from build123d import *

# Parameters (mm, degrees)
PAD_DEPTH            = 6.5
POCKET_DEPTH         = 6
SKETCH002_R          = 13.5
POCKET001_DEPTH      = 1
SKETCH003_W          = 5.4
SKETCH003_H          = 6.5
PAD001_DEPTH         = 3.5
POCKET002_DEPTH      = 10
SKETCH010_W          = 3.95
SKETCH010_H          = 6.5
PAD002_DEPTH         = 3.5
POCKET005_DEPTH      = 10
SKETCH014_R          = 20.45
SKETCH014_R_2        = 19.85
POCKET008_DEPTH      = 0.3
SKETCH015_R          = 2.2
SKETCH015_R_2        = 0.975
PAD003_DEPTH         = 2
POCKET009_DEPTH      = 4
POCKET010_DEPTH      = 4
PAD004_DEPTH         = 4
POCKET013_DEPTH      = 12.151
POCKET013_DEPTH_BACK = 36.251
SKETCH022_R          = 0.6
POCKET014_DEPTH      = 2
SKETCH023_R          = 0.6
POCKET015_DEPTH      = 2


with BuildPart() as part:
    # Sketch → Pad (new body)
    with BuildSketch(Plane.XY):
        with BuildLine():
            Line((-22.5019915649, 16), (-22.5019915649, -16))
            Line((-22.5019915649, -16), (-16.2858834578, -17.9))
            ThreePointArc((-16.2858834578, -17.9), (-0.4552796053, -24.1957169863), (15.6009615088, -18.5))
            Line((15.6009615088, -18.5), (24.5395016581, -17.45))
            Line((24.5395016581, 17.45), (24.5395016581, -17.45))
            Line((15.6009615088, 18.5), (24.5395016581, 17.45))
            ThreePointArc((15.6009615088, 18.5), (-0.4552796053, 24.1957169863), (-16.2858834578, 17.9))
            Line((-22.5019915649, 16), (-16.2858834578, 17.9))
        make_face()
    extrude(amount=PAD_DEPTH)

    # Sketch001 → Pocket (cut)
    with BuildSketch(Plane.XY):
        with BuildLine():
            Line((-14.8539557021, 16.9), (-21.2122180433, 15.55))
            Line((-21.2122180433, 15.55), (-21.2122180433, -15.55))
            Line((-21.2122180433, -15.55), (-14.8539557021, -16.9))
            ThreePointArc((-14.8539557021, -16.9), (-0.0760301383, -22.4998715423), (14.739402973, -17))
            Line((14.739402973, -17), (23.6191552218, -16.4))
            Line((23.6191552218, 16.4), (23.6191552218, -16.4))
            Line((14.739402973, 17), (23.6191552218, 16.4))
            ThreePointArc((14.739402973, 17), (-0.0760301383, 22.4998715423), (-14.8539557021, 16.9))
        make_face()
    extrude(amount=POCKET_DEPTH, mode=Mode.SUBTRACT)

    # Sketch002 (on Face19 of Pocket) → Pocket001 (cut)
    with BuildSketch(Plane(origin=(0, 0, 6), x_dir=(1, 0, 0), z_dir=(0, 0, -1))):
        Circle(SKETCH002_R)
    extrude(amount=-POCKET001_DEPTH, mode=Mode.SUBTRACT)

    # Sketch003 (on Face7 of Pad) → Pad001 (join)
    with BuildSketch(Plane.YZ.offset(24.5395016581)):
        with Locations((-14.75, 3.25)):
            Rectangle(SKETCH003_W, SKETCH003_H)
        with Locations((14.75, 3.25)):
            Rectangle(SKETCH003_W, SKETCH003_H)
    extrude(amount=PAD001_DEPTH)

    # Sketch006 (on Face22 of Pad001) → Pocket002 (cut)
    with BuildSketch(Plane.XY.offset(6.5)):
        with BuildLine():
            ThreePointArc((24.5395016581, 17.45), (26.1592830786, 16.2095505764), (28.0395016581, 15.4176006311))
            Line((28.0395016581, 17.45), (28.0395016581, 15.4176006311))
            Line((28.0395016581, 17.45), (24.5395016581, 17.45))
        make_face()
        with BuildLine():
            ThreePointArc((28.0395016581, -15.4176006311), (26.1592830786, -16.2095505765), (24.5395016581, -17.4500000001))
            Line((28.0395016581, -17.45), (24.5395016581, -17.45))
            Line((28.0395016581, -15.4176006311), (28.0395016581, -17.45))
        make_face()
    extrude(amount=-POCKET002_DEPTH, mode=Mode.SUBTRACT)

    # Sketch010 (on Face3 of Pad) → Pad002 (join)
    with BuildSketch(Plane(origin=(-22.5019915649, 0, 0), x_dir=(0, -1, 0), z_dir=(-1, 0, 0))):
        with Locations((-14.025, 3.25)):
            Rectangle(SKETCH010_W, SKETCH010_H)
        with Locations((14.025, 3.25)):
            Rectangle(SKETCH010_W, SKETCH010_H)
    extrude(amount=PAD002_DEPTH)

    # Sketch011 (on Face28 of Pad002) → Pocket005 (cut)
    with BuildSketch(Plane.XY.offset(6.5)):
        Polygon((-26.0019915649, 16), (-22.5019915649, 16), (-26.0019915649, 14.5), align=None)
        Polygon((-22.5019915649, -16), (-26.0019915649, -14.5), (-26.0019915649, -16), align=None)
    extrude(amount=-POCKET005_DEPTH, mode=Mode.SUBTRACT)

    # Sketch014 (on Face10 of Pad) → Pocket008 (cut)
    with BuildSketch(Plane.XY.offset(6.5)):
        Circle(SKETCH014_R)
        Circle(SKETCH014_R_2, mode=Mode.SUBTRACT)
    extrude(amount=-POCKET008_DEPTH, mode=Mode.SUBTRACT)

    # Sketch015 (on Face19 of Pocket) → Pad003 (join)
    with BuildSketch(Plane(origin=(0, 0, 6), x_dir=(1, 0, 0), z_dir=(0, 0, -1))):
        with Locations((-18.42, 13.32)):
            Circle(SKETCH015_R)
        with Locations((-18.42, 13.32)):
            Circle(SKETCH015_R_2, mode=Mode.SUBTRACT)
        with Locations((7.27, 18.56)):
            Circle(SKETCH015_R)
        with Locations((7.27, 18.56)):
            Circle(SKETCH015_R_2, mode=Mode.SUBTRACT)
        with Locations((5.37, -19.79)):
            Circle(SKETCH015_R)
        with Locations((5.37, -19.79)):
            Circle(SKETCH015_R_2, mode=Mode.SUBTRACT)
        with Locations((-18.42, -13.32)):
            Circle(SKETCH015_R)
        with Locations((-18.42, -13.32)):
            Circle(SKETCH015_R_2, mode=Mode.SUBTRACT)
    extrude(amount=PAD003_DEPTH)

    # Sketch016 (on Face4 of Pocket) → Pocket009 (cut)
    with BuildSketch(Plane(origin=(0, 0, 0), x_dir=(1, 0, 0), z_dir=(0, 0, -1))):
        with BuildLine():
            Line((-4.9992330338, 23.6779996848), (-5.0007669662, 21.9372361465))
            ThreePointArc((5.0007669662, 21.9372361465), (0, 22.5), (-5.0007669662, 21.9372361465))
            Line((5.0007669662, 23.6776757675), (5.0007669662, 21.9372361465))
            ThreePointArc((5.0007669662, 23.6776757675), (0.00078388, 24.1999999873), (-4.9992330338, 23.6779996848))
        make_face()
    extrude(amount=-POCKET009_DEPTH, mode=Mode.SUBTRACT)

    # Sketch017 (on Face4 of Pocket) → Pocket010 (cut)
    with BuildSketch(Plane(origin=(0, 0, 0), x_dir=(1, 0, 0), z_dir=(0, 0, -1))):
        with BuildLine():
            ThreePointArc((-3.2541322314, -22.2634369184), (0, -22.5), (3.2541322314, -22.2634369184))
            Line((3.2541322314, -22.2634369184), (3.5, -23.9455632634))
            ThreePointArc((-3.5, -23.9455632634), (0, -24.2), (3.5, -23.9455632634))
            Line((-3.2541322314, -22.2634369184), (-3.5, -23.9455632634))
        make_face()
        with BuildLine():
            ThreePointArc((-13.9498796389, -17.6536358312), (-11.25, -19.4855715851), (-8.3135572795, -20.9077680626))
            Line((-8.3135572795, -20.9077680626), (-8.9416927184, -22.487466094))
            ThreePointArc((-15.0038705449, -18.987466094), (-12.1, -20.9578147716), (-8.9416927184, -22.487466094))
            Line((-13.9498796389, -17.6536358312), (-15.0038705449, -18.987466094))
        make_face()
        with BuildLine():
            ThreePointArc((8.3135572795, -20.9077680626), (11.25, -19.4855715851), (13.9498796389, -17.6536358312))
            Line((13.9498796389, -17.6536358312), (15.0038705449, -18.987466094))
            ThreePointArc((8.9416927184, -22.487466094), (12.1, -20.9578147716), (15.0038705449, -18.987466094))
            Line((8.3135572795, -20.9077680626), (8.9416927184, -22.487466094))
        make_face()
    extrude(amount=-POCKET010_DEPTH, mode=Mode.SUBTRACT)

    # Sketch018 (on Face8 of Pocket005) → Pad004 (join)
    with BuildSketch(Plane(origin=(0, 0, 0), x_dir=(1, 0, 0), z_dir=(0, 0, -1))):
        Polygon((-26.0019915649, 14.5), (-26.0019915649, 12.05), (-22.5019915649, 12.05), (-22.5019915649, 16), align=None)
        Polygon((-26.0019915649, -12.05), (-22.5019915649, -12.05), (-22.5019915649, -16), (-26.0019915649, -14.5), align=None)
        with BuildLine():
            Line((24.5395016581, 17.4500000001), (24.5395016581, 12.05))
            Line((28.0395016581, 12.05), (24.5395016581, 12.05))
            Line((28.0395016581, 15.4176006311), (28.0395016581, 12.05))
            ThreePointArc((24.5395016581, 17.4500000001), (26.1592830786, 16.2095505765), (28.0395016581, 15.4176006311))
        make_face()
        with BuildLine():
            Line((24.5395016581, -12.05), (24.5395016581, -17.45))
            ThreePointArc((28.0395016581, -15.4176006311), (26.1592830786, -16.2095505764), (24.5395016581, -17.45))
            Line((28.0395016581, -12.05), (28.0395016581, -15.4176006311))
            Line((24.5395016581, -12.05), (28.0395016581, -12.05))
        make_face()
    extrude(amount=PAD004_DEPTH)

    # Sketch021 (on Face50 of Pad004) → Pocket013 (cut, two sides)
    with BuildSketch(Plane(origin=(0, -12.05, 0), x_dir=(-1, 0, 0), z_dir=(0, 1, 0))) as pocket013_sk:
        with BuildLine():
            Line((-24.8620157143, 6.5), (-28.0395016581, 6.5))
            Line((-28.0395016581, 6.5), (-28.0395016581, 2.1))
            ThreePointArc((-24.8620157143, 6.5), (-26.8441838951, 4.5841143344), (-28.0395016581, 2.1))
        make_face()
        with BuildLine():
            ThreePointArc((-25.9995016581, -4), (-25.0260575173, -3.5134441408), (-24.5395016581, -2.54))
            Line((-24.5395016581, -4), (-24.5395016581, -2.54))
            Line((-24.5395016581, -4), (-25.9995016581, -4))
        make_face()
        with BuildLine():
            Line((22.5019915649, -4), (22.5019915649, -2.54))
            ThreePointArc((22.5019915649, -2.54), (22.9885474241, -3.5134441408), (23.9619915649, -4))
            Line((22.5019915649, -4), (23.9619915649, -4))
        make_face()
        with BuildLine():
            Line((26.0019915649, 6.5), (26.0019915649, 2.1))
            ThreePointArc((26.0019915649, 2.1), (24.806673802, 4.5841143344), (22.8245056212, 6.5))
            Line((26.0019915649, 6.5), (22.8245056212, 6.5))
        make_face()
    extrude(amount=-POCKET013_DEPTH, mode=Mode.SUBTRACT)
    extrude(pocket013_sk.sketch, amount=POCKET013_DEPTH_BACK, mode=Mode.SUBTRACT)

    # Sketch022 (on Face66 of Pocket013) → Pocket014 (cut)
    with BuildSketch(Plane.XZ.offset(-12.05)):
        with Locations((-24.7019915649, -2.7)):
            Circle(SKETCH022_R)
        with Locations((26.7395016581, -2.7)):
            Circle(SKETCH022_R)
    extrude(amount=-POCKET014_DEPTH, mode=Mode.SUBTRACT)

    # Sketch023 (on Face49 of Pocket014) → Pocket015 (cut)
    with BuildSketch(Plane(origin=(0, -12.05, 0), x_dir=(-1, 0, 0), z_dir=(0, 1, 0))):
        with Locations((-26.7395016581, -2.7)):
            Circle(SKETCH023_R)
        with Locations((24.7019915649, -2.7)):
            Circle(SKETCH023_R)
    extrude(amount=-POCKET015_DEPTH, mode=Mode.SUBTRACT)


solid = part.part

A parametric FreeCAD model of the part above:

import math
import FreeCAD as App
import Part
import Sketcher
Q = App.Units.Quantity

doc = App.newDocument("Part")
body = doc.addObject("PartDesign::Body", "Body")

sketch1 = body.newObject("Sketcher::SketchObject", "Sketch")
sketch1.AttachmentSupport = (doc.getObject("XY_Plane"), [""])
sketch1.MapMode = "FlatFace"
sketch1.addGeometry([
    Part.LineSegment(App.Vector(-22.501992, 16, 0), App.Vector(-22.501992, -16, 0)),
    Part.LineSegment(App.Vector(-22.501992, -16, 0), App.Vector(-16.285883, -17.9, 0)),
    Part.ArcOfCircle(Part.Circle(App.Vector(0, 0, 0), App.Vector(0, 0, 1), 24.2), math.radians(-132.296737), math.radians(-49.859225)),
    Part.LineSegment(App.Vector(15.600962, -18.5, 0), App.Vector(24.539502, -17.45, 0)),
    Part.LineSegment(App.Vector(24.539502, -17.45, 0), App.Vector(24.539502, 17.45, 0)),
    Part.LineSegment(App.Vector(24.539502, 17.45, 0), App.Vector(15.600962, 18.5, 0)),
    Part.ArcOfCircle(Part.Circle(App.Vector(0, 0, 0), App.Vector(0, 0, 1), 24.2), math.radians(49.859225), math.radians(132.296737)),
    Part.LineSegment(App.Vector(-16.285883, 17.9, 0), App.Vector(-22.501992, 16, 0)),
], False)
sketch1.addConstraint([
    Sketcher.Constraint("Coincident", 0, 2, 1, 1),
    Sketcher.Constraint("Coincident", 1, 2, 2, 1),
    Sketcher.Constraint("Coincident", 2, 2, 3, 1),
    Sketcher.Constraint("Coincident", 3, 2, 4, 1),
    Sketcher.Constraint("Coincident", 4, 2, 5, 1),
    Sketcher.Constraint("Coincident", 5, 2, 6, 1),
    Sketcher.Constraint("Coincident", 6, 2, 7, 1),
    Sketcher.Constraint("Coincident", 7, 2, 0, 1),
    Sketcher.Constraint("Vertical", 0),
    Sketcher.Constraint("Vertical", 4),
    Sketcher.Constraint("Coincident", 2, 3, -1, 1),
    Sketcher.Constraint("Coincident", 6, 3, -1, 1),
    Sketcher.Constraint("Equal", 2, 6),
    Sketcher.Constraint("Vertical", 2, 2, 5, 2),
    Sketcher.Constraint("Vertical", 1, 2, 6, 2),
    Sketcher.Constraint("Equal", 3, 5),
    Sketcher.Constraint("Equal", 1, 7),
    Sketcher.Constraint("Radius", 2, Q("24.2 mm")),
    Sketcher.Constraint("DistanceY", 0, 2, 0, 1, Q("32 mm")),
    Sketcher.Constraint("Distance", 3, Q("9 mm")),
    Sketcher.Constraint("DistanceY", 4, 1, 4, 2, Q("34.9 mm")),
    Sketcher.Constraint("DistanceY", 2, 2, 5, 2, Q("37 mm")),
    Sketcher.Constraint("Distance", 1, Q("6.5 mm")),
    Sketcher.Constraint("DistanceY", 1, 2, -1, 1, Q("17.9 mm")),
])
pad1 = body.newObject("PartDesign::Pad", "Pad")
pad1.Profile = sketch1
pad1.Length = 6.5

sketch2 = body.newObject("Sketcher::SketchObject", "Sketch001")
sketch2.AttachmentSupport = (doc.getObject("XY_Plane"), [""])
sketch2.MapMode = "FlatFace"
sketch2.addGeometry([
    Part.LineSegment(App.Vector(-14.853956, 16.9, 0), App.Vector(-21.212218, 15.55, 0)),
    Part.LineSegment(App.Vector(-21.212218, 15.55, 0), App.Vector(-21.212218, -15.55, 0)),
    Part.LineSegment(App.Vector(-21.212218, -15.55, 0), App.Vector(-14.853956, -16.9, 0)),
    Part.ArcOfCircle(Part.Circle(App.Vector(0, 0, 0), App.Vector(0, 0, 1), 22.5), math.radians(-131.313282), math.radians(-49.073937)),
    Part.LineSegment(App.Vector(14.739403, -17, 0), App.Vector(23.619155, -16.4, 0)),
    Part.LineSegment(App.Vector(23.619155, -16.4, 0), App.Vector(23.619155, 16.4, 0)),
    Part.LineSegment(App.Vector(23.619155, 16.4, 0), App.Vector(14.739403, 17, 0)),
    Part.ArcOfCircle(Part.Circle(App.Vector(0, 0, 0), App.Vector(0, 0, 1), 22.5), math.radians(49.073937), math.radians(131.313282)),
], False)
sketch2.addConstraint([
    Sketcher.Constraint("Coincident", 0, 2, 1, 1),
    Sketcher.Constraint("Coincident", 1, 2, 2, 1),
    Sketcher.Constraint("Coincident", 2, 2, 3, 1),
    Sketcher.Constraint("Coincident", 3, 2, 4, 1),
    Sketcher.Constraint("Coincident", 4, 2, 5, 1),
    Sketcher.Constraint("Coincident", 5, 2, 6, 1),
    Sketcher.Constraint("Coincident", 6, 2, 7, 1),
    Sketcher.Constraint("Coincident", 7, 2, 0, 1),
    Sketcher.Constraint("Vertical", 1),
    Sketcher.Constraint("Vertical", 5),
    Sketcher.Constraint("Coincident", 3, 3, -1, 1),
    Sketcher.Constraint("Coincident", 7, 3, -1, 1),
    Sketcher.Constraint("Equal", 3, 7),
    Sketcher.Constraint("Vertical", 3, 2, 6, 2),
    Sketcher.Constraint("Vertical", 2, 2, 7, 2),
    Sketcher.Constraint("Equal", 0, 2),
    Sketcher.Constraint("Equal", 4, 6),
    Sketcher.Constraint("Radius", 3, Q("22.5 mm")),
    Sketcher.Constraint("DistanceY", 1, 2, 1, 1, Q("31.1 mm")),
    Sketcher.Constraint("DistanceY", 5, 1, 5, 2, Q("32.8 mm")),
    Sketcher.Constraint("DistanceY", 3, 2, -1, 1, Q("17 mm")),
    Sketcher.Constraint("Distance", 0, Q("6.5 mm")),
    Sketcher.Constraint("Distance", 4, Q("8.9 mm")),
    Sketcher.Constraint("DistanceY", 2, 2, -1, 1, Q("16.9 mm")),
])
pocket1 = body.newObject("PartDesign::Pocket", "Pocket")
pocket1.Profile = sketch2
pocket1.Length = 6
pocket1.Reversed = True

sketch3 = body.newObject("Sketcher::SketchObject", "Sketch002")
sketch3.AttachmentSupport = (doc.getObject("XY_Plane"), [""])
sketch3.MapMode = "FlatFace"
sketch3.AttachmentOffset = App.Placement(App.Vector(0, 0, 6), App.Rotation())
sketch3.addGeometry(Part.Circle(App.Vector(0, 0, 0), App.Vector(0, 0, 1), 13.5), False)
sketch3.addConstraint([
    Sketcher.Constraint("Coincident", 0, 3, -1, 1),
    Sketcher.Constraint("Diameter", 0, Q("27 mm")),
])
pocket2 = body.newObject("PartDesign::Pocket", "Pocket001")
pocket2.Profile = sketch3
pocket2.Length = 1
pocket2.Reversed = True

sketch4 = body.newObject("Sketcher::SketchObject", "Sketch003")
sketch4.AttachmentSupport = (doc.getObject("YZ_Plane"), [""])
sketch4.MapMode = "FlatFace"
sketch4.AttachmentOffset = App.Placement(App.Vector(0, 0, 24.539502), App.Rotation())
sketch4.addGeometry([
    Part.LineSegment(App.Vector(-17.45, 6.5, 0), App.Vector(-17.45, 0, 0)),
    Part.LineSegment(App.Vector(-17.45, 0, 0), App.Vector(-12.05, 0, 0)),
    Part.LineSegment(App.Vector(-12.05, 0, 0), App.Vector(-12.05, 6.5, 0)),
    Part.LineSegment(App.Vector(-12.05, 6.5, 0), App.Vector(-17.45, 6.5, 0)),
    Part.LineSegment(App.Vector(12.05, 6.5, 0), App.Vector(12.05, 0, 0)),
    Part.LineSegment(App.Vector(12.05, 0, 0), App.Vector(17.45, 0, 0)),
    Part.LineSegment(App.Vector(17.45, 0, 0), App.Vector(17.45, 6.5, 0)),
    Part.LineSegment(App.Vector(17.45, 6.5, 0), App.Vector(12.05, 6.5, 0)),
], False)
sketch4.addConstraint([
    Sketcher.Constraint("Coincident", 0, 2, 1, 1),
    Sketcher.Constraint("Coincident", 1, 2, 2, 1),
    Sketcher.Constraint("Coincident", 2, 2, 3, 1),
    Sketcher.Constraint("Coincident", 3, 2, 0, 1),
    Sketcher.Constraint("Coincident", 4, 2, 5, 1),
    Sketcher.Constraint("Coincident", 5, 2, 6, 1),
    Sketcher.Constraint("Coincident", 6, 2, 7, 1),
    Sketcher.Constraint("Coincident", 7, 2, 4, 1),
    Sketcher.Constraint("Vertical", 0),
    Sketcher.Constraint("Horizontal", 1),
    Sketcher.Constraint("Vertical", 2),
    Sketcher.Constraint("Horizontal", 3),
    Sketcher.Constraint("Vertical", 4),
    Sketcher.Constraint("Horizontal", 5),
    Sketcher.Constraint("Vertical", 6),
    Sketcher.Constraint("Horizontal", 7),
    Sketcher.Constraint("Symmetric", 1, 2, 4, 2, -1, 1),
    Sketcher.Constraint("Symmetric", 0, 2, 5, 2, -2),
    Sketcher.Constraint("Horizontal", 3, 2, 6, 2),
    Sketcher.Constraint("DistanceX", 1, 1, 1, 2, Q("5.4 mm")),
    Sketcher.Constraint("DistanceY", 0, 2, 0, 1, Q("6.5 mm")),
    Sketcher.Constraint("DistanceX", 1, 2, 4, 2, Q("24.1 mm")),
])
pad2 = body.newObject("PartDesign::Pad", "Pad001")
pad2.Profile = sketch4
pad2.Length = 3.5

sketch5 = body.newObject("Sketcher::SketchObject", "Sketch004")
sketch5.AttachmentSupport = (doc.getObject("XY_Plane"), [""])
sketch5.MapMode = "FlatFace"
sketch5.AttachmentOffset = App.Placement(App.Vector(0, 0, 6.5), App.Rotation())
sketch5.addGeometry([
    Part.ArcOfCircle(Part.Circle(App.Vector(30.189502, 23.15, 0), App.Vector(0, 0, 1), 8.02574), math.radians(-134.747597), math.radians(-105.538634)),
    Part.LineSegment(App.Vector(28.039502, 15.417601, 0), App.Vector(28.039502, 17.45, 0)),
    Part.LineSegment(App.Vector(28.039502, 17.45, 0), App.Vector(24.539502, 17.45, 0)),
    Part.ArcOfCircle(Part.Circle(App.Vector(30.189502, -23.15, 0), App.Vector(0, 0, 1), 8.02574), math.radians(105.538634), math.radians(134.747597)),
    Part.LineSegment(App.Vector(24.539502, -17.45, 0), App.Vector(28.039502, -17.45, 0)),
    Part.LineSegment(App.Vector(28.039502, -17.45, 0), App.Vector(28.039502, -15.417601, 0)),
], False)
sketch5.addConstraint([
    Sketcher.Constraint("Coincident", 0, 2, 1, 1),
    Sketcher.Constraint("Coincident", 1, 2, 2, 1),
    Sketcher.Constraint("Coincident", 2, 2, 0, 1),
    Sketcher.Constraint("Coincident", 3, 2, 4, 1),
    Sketcher.Constraint("Coincident", 4, 2, 5, 1),
    Sketcher.Constraint("Coincident", 5, 2, 3, 1),
    Sketcher.Constraint("Vertical", 1),
    Sketcher.Constraint("Horizontal", 2),
    Sketcher.Constraint("Horizontal", 4),
    Sketcher.Constraint("Vertical", 5),
    Sketcher.Constraint("Equal", 0, 3),
    Sketcher.Constraint("Symmetric", 0, 3, 3, 3, -1),
    Sketcher.Constraint("Symmetric", 1, 2, 4, 2, -1),
    Sketcher.Constraint("DistanceX", 2, 2, 2, 1, Q("3.5 mm")),
    Sketcher.Constraint("DistanceY", 3, 3, 0, 3, Q("46.3 mm")),
    Sketcher.Constraint("DistanceY", 1, 2, 0, 3, Q("5.7 mm")),
    Sketcher.Constraint("Radius", 0, Q("8.02574 mm")),
    Sketcher.Constraint("DistanceX", -1, 1, 0, 3, Q("30.189502 mm")),
])
pocket3 = body.newObject("PartDesign::Pocket", "Pocket002")
pocket3.Profile = sketch5
pocket3.Length = 10

sketch6 = body.newObject("Sketcher::SketchObject", "Sketch005")
sketch6.AttachmentSupport = (doc.getObject("YZ_Plane"), [""])
sketch6.MapMode = "FlatFace"
sketch6.AttachmentOffset = App.Placement(App.Vector(0, 0, -22.501992), App.Rotation())
sketch6.addGeometry([
    Part.LineSegment(App.Vector(16, 6.5, 0), App.Vector(16, 0, 0)),
    Part.LineSegment(App.Vector(16, 0, 0), App.Vector(12.05, 0, 0)),
    Part.LineSegment(App.Vector(12.05, 0, 0), App.Vector(12.05, 6.5, 0)),
    Part.LineSegment(App.Vector(12.05, 6.5, 0), App.Vector(16, 6.5, 0)),
    Part.LineSegment(App.Vector(-12.05, 6.5, 0), App.Vector(-12.05, 0, 0)),
    Part.LineSegment(App.Vector(-12.05, 0, 0), App.Vector(-16, 0, 0)),
    Part.LineSegment(App.Vector(-16, 0, 0), App.Vector(-16, 6.5, 0)),
    Part.LineSegment(App.Vector(-16, 6.5, 0), App.Vector(-12.05, 6.5, 0)),
], False)
sketch6.addConstraint([
    Sketcher.Constraint("Coincident", 0, 2, 1, 1),
    Sketcher.Constraint("Coincident", 1, 2, 2, 1),
    Sketcher.Constraint("Coincident", 2, 2, 3, 1),
    Sketcher.Constraint("Coincident", 3, 2, 0, 1),
    Sketcher.Constraint("Coincident", 4, 2, 5, 1),
    Sketcher.Constraint("Coincident", 5, 2, 6, 1),
    Sketcher.Constraint("Coincident", 6, 2, 7, 1),
    Sketcher.Constraint("Coincident", 7, 2, 4, 1),
    Sketcher.Constraint("Vertical", 0),
    Sketcher.Constraint("Horizontal", 1),
    Sketcher.Constraint("Vertical", 2),
    Sketcher.Constraint("Horizontal", 3),
    Sketcher.Constraint("Vertical", 4),
    Sketcher.Constraint("Horizontal", 5),
    Sketcher.Constraint("Vertical", 6),
    Sketcher.Constraint("Horizontal", 7),
    Sketcher.Constraint("Symmetric", 1, 2, 4, 2, -1, 1),
    Sketcher.Constraint("Symmetric", 0, 2, 5, 2, -2),
    Sketcher.Constraint("Horizontal", 3, 2, 6, 2),
    Sketcher.Constraint("DistanceY", 0, 2, 0, 1, Q("6.5 mm")),
    Sketcher.Constraint("DistanceX", -1, 1, 0, 2, Q("16 mm")),
    Sketcher.Constraint("DistanceX", 1, 2, 1, 1, Q("3.95 mm")),
])
pad3 = body.newObject("PartDesign::Pad", "Pad002")
pad3.Profile = sketch6
pad3.Length = 3.5
pad3.Reversed = True

sketch7 = body.newObject("Sketcher::SketchObject", "Sketch006")
sketch7.AttachmentSupport = (doc.getObject("XY_Plane"), [""])
sketch7.MapMode = "FlatFace"
sketch7.AttachmentOffset = App.Placement(App.Vector(0, 0, 6.5), App.Rotation())
sketch7.addGeometry([
    Part.LineSegment(App.Vector(-22.501992, 16, 0), App.Vector(-26.001992, 16, 0)),
    Part.LineSegment(App.Vector(-26.001992, 16, 0), App.Vector(-26.001992, 14.5, 0)),
    Part.LineSegment(App.Vector(-26.001992, 14.5, 0), App.Vector(-22.501992, 16, 0)),
    Part.LineSegment(App.Vector(-22.501992, -16, 0), App.Vector(-26.001992, -14.5, 0)),
    Part.LineSegment(App.Vector(-26.001992, -14.5, 0), App.Vector(-26.001992, -16, 0)),
    Part.LineSegment(App.Vector(-26.001992, -16, 0), App.Vector(-22.501992, -16, 0)),
], False)
sketch7.addConstraint([
    Sketcher.Constraint("Coincident", 0, 2, 1, 1),
    Sketcher.Constraint("Coincident", 1, 2, 2, 1),
    Sketcher.Constraint("Coincident", 2, 2, 0, 1),
    Sketcher.Constraint("Coincident", 3, 2, 4, 1),
    Sketcher.Constraint("Coincident", 4, 2, 5, 1),
    Sketcher.Constraint("Coincident", 5, 2, 3, 1),
    Sketcher.Constraint("Horizontal", 0),
    Sketcher.Constraint("Vertical", 1),
    Sketcher.Constraint("Vertical", 4),
    Sketcher.Constraint("Horizontal", 5),
    Sketcher.Constraint("Symmetric", 1, 2, 3, 2, -1),
    Sketcher.Constraint("Symmetric", 2, 2, 5, 2, -1),
    Sketcher.Constraint("DistanceX", 0, 2, 0, 1, Q("3.5 mm")),
    Sketcher.Constraint("DistanceY", 1, 2, 1, 1, Q("1.5 mm")),
    Sketcher.Constraint("DistanceY", -1, 1, 0, 2, Q("16 mm")),
    Sketcher.Constraint("DistanceX", 0, 2, -1, 1, Q("26.001992 mm")),
])
pocket4 = body.newObject("PartDesign::Pocket", "Pocket003")
pocket4.Profile = sketch7
pocket4.Length = 10

sketch8 = body.newObject("Sketcher::SketchObject", "Sketch007")
sketch8.AttachmentSupport = (doc.getObject("XY_Plane"), [""])
sketch8.MapMode = "FlatFace"
sketch8.AttachmentOffset = App.Placement(App.Vector(0, 0, 6.5), App.Rotation())
sketch8.addGeometry([
    Part.Circle(App.Vector(0, 0, 0), App.Vector(0, 0, 1), 20.45),
    Part.Circle(App.Vector(0, 0, 0), App.Vector(0, 0, 1), 19.85),
], False)
sketch8.addConstraint([
    Sketcher.Constraint("Coincident", 0, 3, -1, 1),
    Sketcher.Constraint("Coincident", 1, 3, -1, 1),
    Sketcher.Constraint("Diameter", 0, Q("40.9 mm")),
    Sketcher.Constraint("Diameter", 1, Q("39.7 mm")),
])
pocket5 = body.newObject("PartDesign::Pocket", "Pocket004")
pocket5.Profile = sketch8
pocket5.Length = 0.3

sketch9 = body.newObject("Sketcher::SketchObject", "Sketch008")
sketch9.AttachmentSupport = (doc.getObject("XY_Plane"), [""])
sketch9.MapMode = "FlatFace"
sketch9.AttachmentOffset = App.Placement(App.Vector(0, 0, 6), App.Rotation())
sketch9.addGeometry([
    Part.Circle(App.Vector(-18.42, -13.32, 0), App.Vector(0, 0, 1), 2.2),
    Part.Circle(App.Vector(-18.42, -13.32, 0), App.Vector(0, 0, 1), 0.975),
    Part.Circle(App.Vector(7.27, -18.56, 0), App.Vector(0, 0, 1), 2.2),
    Part.Circle(App.Vector(7.27, -18.56, 0), App.Vector(0, 0, 1), 0.975),
    Part.Circle(App.Vector(5.37, 19.79, 0), App.Vector(0, 0, 1), 2.2),
    Part.Circle(App.Vector(5.37, 19.79, 0), App.Vector(0, 0, 1), 0.975),
    Part.Circle(App.Vector(-18.42, 13.32, 0), App.Vector(0, 0, 1), 2.2),
    Part.Circle(App.Vector(-18.42, 13.32, 0), App.Vector(0, 0, 1), 0.975),
], False)
sketch9.addConstraint([
    Sketcher.Constraint("Coincident", 1, 3, 0, 3),
    Sketcher.Constraint("Coincident", 3, 3, 2, 3),
    Sketcher.Constraint("Coincident", 5, 3, 4, 3),
    Sketcher.Constraint("Coincident", 7, 3, 6, 3),
    Sketcher.Constraint("Equal", 0, 2),
    Sketcher.Constraint("Equal", 1, 3),
    Sketcher.Constraint("Equal", 2, 4),
    Sketcher.Constraint("Equal", 3, 5),
    Sketcher.Constraint("Equal", 4, 6),
    Sketcher.Constraint("Equal", 5, 7),
    Sketcher.Constraint("Symmetric", 0, 3, 6, 3, -1),
    Sketcher.Constraint("Diameter", 0, Q("4.4 mm")),
    Sketcher.Constraint("Diameter", 1, Q("1.95 mm")),
    Sketcher.Constraint("DistanceX", 4, 3, 2, 3, Q("1.9 mm")),
    Sketcher.Constraint("DistanceX", 0, 3, -1, 1, Q("18.42 mm")),
    Sketcher.Constraint("DistanceY", 0, 3, -1, 1, Q("13.32 mm")),
    Sketcher.Constraint("DistanceX", -1, 1, 2, 3, Q("7.27 mm")),
    Sketcher.Constraint("DistanceY", 2, 3, -1, 1, Q("18.56 mm")),
    Sketcher.Constraint("DistanceY", -1, 1, 4, 3, Q("19.79 mm")),
])
pad4 = body.newObject("PartDesign::Pad", "Pad003")
pad4.Profile = sketch9
pad4.Length = 2
pad4.Reversed = True

sketch10 = body.newObject("Sketcher::SketchObject", "Sketch009")
sketch10.AttachmentSupport = (doc.getObject("XY_Plane"), [""])
sketch10.MapMode = "FlatFace"
sketch10.addGeometry([
    Part.LineSegment(App.Vector(-4.999233, -23.678, 0), App.Vector(-5.000767, -21.937236, 0)),
    Part.ArcOfCircle(Part.Circle(App.Vector(0, 0, 0), App.Vector(0, 0, 1), 22.5), math.radians(-102.841592), math.radians(-77.158408)),
    Part.LineSegment(App.Vector(5.000767, -21.937236, 0), App.Vector(5.000767, -23.677676, 0)),
    Part.ArcOfCircle(Part.Circle(App.Vector(0, 0, 0), App.Vector(0, 0, 1), 24.2), math.radians(-101.921999), math.radians(-78.074289)),
], False)
sketch10.addConstraint([
    Sketcher.Constraint("Coincident", 0, 2, 1, 1),
    Sketcher.Constraint("Coincident", 1, 2, 2, 1),
    Sketcher.Constraint("Coincident", 2, 2, 3, 2),
    Sketcher.Constraint("Coincident", 3, 1, 0, 1),
    Sketcher.Constraint("Vertical", 2),
    Sketcher.Constraint("Coincident", 1, 3, -1, 1),
    Sketcher.Constraint("Coincident", 3, 3, -1, 1),
    Sketcher.Constraint("Horizontal", 0, 2, 1, 2),
    Sketcher.Constraint("Radius", 1, Q("22.5 mm")),
    Sketcher.Constraint("Radius", 3, Q("24.2 mm")),
    Sketcher.Constraint("DistanceX", 3, 1, 2, 2, Q("10 mm")),
    Sketcher.Constraint("DistanceY", 3, 1, -1, 1, Q("23.678 mm")),
])
pocket6 = body.newObject("PartDesign::Pocket", "Pocket005")
pocket6.Profile = sketch10
pocket6.Length = 4
pocket6.Reversed = True

sketch11 = body.newObject("Sketcher::SketchObject", "Sketch010")
sketch11.AttachmentSupport = (doc.getObject("XY_Plane"), [""])
sketch11.MapMode = "FlatFace"
sketch11.addGeometry([
    Part.ArcOfCircle(Part.Circle(App.Vector(0, 0, 0), App.Vector(0, 0, 1), 22.5), math.radians(81.684256), math.radians(98.315744)),
    Part.LineSegment(App.Vector(-3.254132, 22.263437, 0), App.Vector(-3.5, 23.945563, 0)),
    Part.ArcOfCircle(Part.Circle(App.Vector(0, 0, 0), App.Vector(0, 0, 1), 24.2), math.radians(81.684256), math.radians(98.315744)),
    Part.LineSegment(App.Vector(3.5, 23.945563, 0), App.Vector(3.254132, 22.263437, 0)),
    Part.ArcOfCircle(Part.Circle(App.Vector(0, 0, 0), App.Vector(0, 0, 1), 22.5), math.radians(111.684256), math.radians(128.315744)),
    Part.LineSegment(App.Vector(-13.94988, 17.653636, 0), App.Vector(-15.003871, 18.987466, 0)),
    Part.ArcOfCircle(Part.Circle(App.Vector(0, 0, 0), App.Vector(0, 0, 1), 24.2), math.radians(111.684256), math.radians(128.315744)),
    Part.LineSegment(App.Vector(-8.941693, 22.487466, 0), App.Vector(-8.313557, 20.907768, 0)),
    Part.ArcOfCircle(Part.Circle(App.Vector(0, 0, 0), App.Vector(0, 0, 1), 22.5), math.radians(51.684256), math.radians(68.315744)),
    Part.LineSegment(App.Vector(8.313557, 20.907768, 0), App.Vector(8.941693, 22.487466, 0)),
    Part.ArcOfCircle(Part.Circle(App.Vector(0, 0, 0), App.Vector(0, 0, 1), 24.2), math.radians(51.684256), math.radians(68.315744)),
    Part.LineSegment(App.Vector(15.003871, 18.987466, 0), App.Vector(13.94988, 17.653636, 0)),
], False)
sketch11.addConstraint([
    Sketcher.Constraint("Coincident", 0, 2, 1, 1),
    Sketcher.Constraint("Coincident", 1, 2, 2, 2),
    Sketcher.Constraint("Coincident", 2, 1, 3, 1),
    Sketcher.Constraint("Coincident", 3, 2, 0, 1),
    Sketcher.Constraint("Coincident", 4, 2, 5, 1),
    Sketcher.Constraint("Coincident", 5, 2, 6, 2),
    Sketcher.Constraint("Coincident", 6, 1, 7, 1),
    Sketcher.Constraint("Coincident", 7, 2, 4, 1),
    Sketcher.Constraint("Coincident", 8, 2, 9, 1),
    Sketcher.Constraint("Coincident", 9, 2, 10, 2),
    Sketcher.Constraint("Coincident", 10, 1, 11, 1),
    Sketcher.Constraint("Coincident", 11, 2, 8, 1),
    Sketcher.Constraint("Coincident", 0, 3, -1, 1),
    Sketcher.Constraint("Coincident", 2, 3, -1, 1),
    Sketcher.Constraint("Coincident", 4, 3, -1, 1),
    Sketcher.Constraint("Coincident", 6, 3, -1, 1),
    Sketcher.Constraint("Coincident", 8, 3, -1, 1),
    Sketcher.Constraint("Coincident", 10, 3, -1, 1),
    Sketcher.Constraint("Equal", 0, 4),
    Sketcher.Constraint("Equal", 2, 6),
    Sketcher.Constraint("Equal", 4, 8),
    Sketcher.Constraint("Equal", 6, 10),
    Sketcher.Constraint("Horizontal", 1, 2, 2, 1),
    Sketcher.Constraint("Horizontal", 0, 2, 3, 2),
    Sketcher.Constraint("Horizontal", 7, 2, 8, 2),
    Sketcher.Constraint("Horizontal", 6, 1, 9, 2),
    Sketcher.Constraint("Horizontal", 5, 2, 10, 1),
    Sketcher.Constraint("Horizontal", 4, 2, 11, 2),
    Sketcher.Constraint("Radius", 0, Q("22.5 mm")),
    Sketcher.Constraint("Radius", 2, Q("24.2 mm")),
    Sketcher.Constraint("DistanceX", 1, 2, 2, 1, Q("7 mm")),
    Sketcher.Constraint("DistanceY", 5, 2, 6, 1, Q("3.5 mm")),
    Sketcher.Constraint("DistanceY", 4, 2, 0, 2, Q("4.609801 mm")),
    Sketcher.Constraint("DistanceY", 7, 2, 6, 1, Q("1.579698 mm")),
    Sketcher.Constraint("DistanceX", 4, 2, -1, 1, Q("13.94988 mm")),
    Sketcher.Constraint("DistanceX", 5, 2, -1, 1, Q("15.003871 mm")),
])
pocket7 = body.newObject("PartDesign::Pocket", "Pocket006")
pocket7.Profile = sketch11
pocket7.Length = 4
pocket7.Reversed = True

sketch12 = body.newObject("Sketcher::SketchObject", "Sketch011")
sketch12.AttachmentSupport = (doc.getObject("XY_Plane"), [""])
sketch12.MapMode = "FlatFace"
sketch12.addGeometry([
    Part.LineSegment(App.Vector(-26.001992, -14.5, 0), App.Vector(-26.001992, -12.05, 0)),
    Part.LineSegment(App.Vector(-26.001992, -12.05, 0), App.Vector(-22.501992, -12.05, 0)),
    Part.LineSegment(App.Vector(-22.501992, -12.05, 0), App.Vector(-22.501992, -16, 0)),
    Part.LineSegment(App.Vector(-22.501992, -16, 0), App.Vector(-26.001992, -14.5, 0)),
    Part.LineSegment(App.Vector(-22.501992, 12.05, 0), App.Vector(-26.001992, 12.05, 0)),
    Part.LineSegment(App.Vector(-26.001992, 12.05, 0), App.Vector(-26.001992, 14.5, 0)),
    Part.LineSegment(App.Vector(-26.001992, 14.5, 0), App.Vector(-22.501992, 16, 0)),
    Part.LineSegment(App.Vector(-22.501992, 16, 0), App.Vector(-22.501992, 12.05, 0)),
    Part.LineSegment(App.Vector(24.539502, -17.45, 0), App.Vector(24.539502, -12.05, 0)),
    Part.LineSegment(App.Vector(24.539502, -12.05, 0), App.Vector(28.039502, -12.05, 0)),
    Part.LineSegment(App.Vector(28.039502, -12.05, 0), App.Vector(28.039502, -15.417601, 0)),
    Part.ArcOfCircle(Part.Circle(App.Vector(30.189502, -23.15, 0), App.Vector(0, 0, 1), 8.02574), math.radians(105.538634), math.radians(134.747597)),
    Part.LineSegment(App.Vector(24.539502, 12.05, 0), App.Vector(24.539502, 17.45, 0)),
    Part.ArcOfCircle(Part.Circle(App.Vector(30.189502, 23.15, 0), App.Vector(0, 0, 1), 8.02574), math.radians(-134.747597), math.radians(-105.538634)),
    Part.LineSegment(App.Vector(28.039502, 15.417601, 0), App.Vector(28.039502, 12.05, 0)),
    Part.LineSegment(App.Vector(28.039502, 12.05, 0), App.Vector(24.539502, 12.05, 0)),
], False)
sketch12.addConstraint([
    Sketcher.Constraint("Coincident", 0, 2, 1, 1),
    Sketcher.Constraint("Coincident", 1, 2, 2, 1),
    Sketcher.Constraint("Coincident", 2, 2, 3, 1),
    Sketcher.Constraint("Coincident", 3, 2, 0, 1),
    Sketcher.Constraint("Coincident", 4, 2, 5, 1),
    Sketcher.Constraint("Coincident", 5, 2, 6, 1),
    Sketcher.Constraint("Coincident", 6, 2, 7, 1),
    Sketcher.Constraint("Coincident", 7, 2, 4, 1),
    Sketcher.Constraint("Coincident", 8, 2, 9, 1),
    Sketcher.Constraint("Coincident", 9, 2, 10, 1),
    Sketcher.Constraint("Coincident", 10, 2, 11, 1),
    Sketcher.Constraint("Coincident", 11, 2, 8, 1),
    Sketcher.Constraint("Coincident", 12, 2, 13, 1),
    Sketcher.Constraint("Coincident", 13, 2, 14, 1),
    Sketcher.Constraint("Coincident", 14, 2, 15, 1),
    Sketcher.Constraint("Coincident", 15, 2, 12, 1),
    Sketcher.Constraint("Vertical", 0),
    Sketcher.Constraint("Horizontal", 1),
    Sketcher.Constraint("Vertical", 2),
    Sketcher.Constraint("Horizontal", 4),
    Sketcher.Constraint("Vertical", 5),
    Sketcher.Constraint("Vertical", 7),
    Sketcher.Constraint("Vertical", 8),
    Sketcher.Constraint("Horizontal", 9),
    Sketcher.Constraint("Vertical", 10),
    Sketcher.Constraint("Vertical", 12),
    Sketcher.Constraint("Vertical", 14),
    Sketcher.Constraint("Horizontal", 15),
    Sketcher.Constraint("Equal", 11, 13),
    Sketcher.Constraint("Symmetric", 11, 3, 13, 3, -1),
    Sketcher.Constraint("Symmetric", 0, 2, 4, 2, -1),
    Sketcher.Constraint("Symmetric", 2, 2, 6, 2, -1),
    Sketcher.Constraint("Symmetric", 9, 2, 14, 2, -1),
    Sketcher.Constraint("Horizontal", 1, 2, 8, 2),
    Sketcher.Constraint("Vertical", 11, 2, 12, 2),
    Sketcher.Constraint("Equal", 4, 9),
    Sketcher.Constraint("Equal", 0, 5),
    Sketcher.Constraint("DistanceX", 1, 1, 1, 2, Q("3.5 mm")),
    Sketcher.Constraint("DistanceY", 8, 1, 8, 2, Q("5.4 mm")),
    Sketcher.Constraint("DistanceY", 2, 2, -1, 1, Q("16 mm")),
    Sketcher.Constraint("DistanceY", 3, 2, 5, 2, Q("29 mm")),
    Sketcher.Constraint("DistanceY", 0, 1, 0, 2, Q("2.45 mm")),
    Sketcher.Constraint("DistanceY", 11, 3, 13, 3, Q("46.3 mm")),
    Sketcher.Constraint("Radius", 11, Q("8.02574 mm")),
    Sketcher.Constraint("DistanceX", -1, 1, 11, 3, Q("30.189502 mm")),
    Sketcher.Constraint("DistanceX", 0, 2, -1, 1, Q("26.001992 mm")),
])
pad5 = body.newObject("PartDesign::Pad", "Pad004")
pad5.Profile = sketch12
pad5.Length = 4
pad5.Reversed = True

sketch13 = body.newObject("Sketcher::SketchObject", "Sketch012")
sketch13.AttachmentSupport = (doc.getObject("XZ_Plane"), [""])
sketch13.MapMode = "FlatFace"
sketch13.AttachmentOffset = App.Placement(App.Vector(0, 0, 12.05), App.Rotation())
sketch13.addGeometry([
    Part.LineSegment(App.Vector(24.862016, 6.5, 0), App.Vector(28.039502, 6.5, 0)),
    Part.LineSegment(App.Vector(28.039502, 6.5, 0), App.Vector(28.039502, 2.1, 0)),
    Part.ArcOfCircle(Part.Circle(App.Vector(20.496366, 0, 0), App.Vector(0, 0, 1), 7.83), math.radians(15.557139), math.radians(56.113172)),
    Part.ArcOfCircle(Part.Circle(App.Vector(26.242281, -2.29722, 0), App.Vector(0, 0, 1), 1.72), math.radians(-171.885552), math.radians(-98.114448)),
    Part.LineSegment(App.Vector(25.999502, -4, 0), App.Vector(24.539502, -4, 0)),
    Part.LineSegment(App.Vector(24.539502, -4, 0), App.Vector(24.539502, -2.54, 0)),
    Part.LineSegment(App.Vector(-22.501992, -2.54, 0), App.Vector(-22.501992, -4, 0)),
    Part.LineSegment(App.Vector(-22.501992, -4, 0), App.Vector(-23.961992, -4, 0)),
    Part.ArcOfCircle(Part.Circle(App.Vector(-24.204771, -2.29722, 0), App.Vector(0, 0, 1), 1.72), math.radians(-81.885552), math.radians(-8.114448)),
    Part.LineSegment(App.Vector(-26.001992, 2.1, 0), App.Vector(-26.001992, 6.5, 0)),
    Part.LineSegment(App.Vector(-26.001992, 6.5, 0), App.Vector(-22.824506, 6.5, 0)),
    Part.ArcOfCircle(Part.Circle(App.Vector(-18.458856, 0, 0), App.Vector(0, 0, 1), 7.83), math.radians(123.886828), math.radians(164.442861)),
], False)
sketch13.addConstraint([
    Sketcher.Constraint("Coincident", 0, 2, 1, 1),
    Sketcher.Constraint("Coincident", 1, 2, 2, 1),
    Sketcher.Constraint("Coincident", 2, 2, 0, 1),
    Sketcher.Constraint("Coincident", 3, 2, 4, 1),
    Sketcher.Constraint("Coincident", 4, 2, 5, 1),
    Sketcher.Constraint("Coincident", 5, 2, 3, 1),
    Sketcher.Constraint("Coincident", 6, 2, 7, 1),
    Sketcher.Constraint("Coincident", 7, 2, 8, 1),
    Sketcher.Constraint("Coincident", 8, 2, 6, 1),
    Sketcher.Constraint("Coincident", 9, 2, 10, 1),
    Sketcher.Constraint("Coincident", 10, 2, 11, 1),
    Sketcher.Constraint("Coincident", 11, 2, 9, 1),
    Sketcher.Constraint("Horizontal", 0),
    Sketcher.Constraint("Vertical", 1),
    Sketcher.Constraint("Horizontal", 4),
    Sketcher.Constraint("Vertical", 5),
    Sketcher.Constraint("Vertical", 6),
    Sketcher.Constraint("Horizontal", 7),
    Sketcher.Constraint("Vertical", 9),
    Sketcher.Constraint("Horizontal", 10),
    Sketcher.Constraint("Equal", 3, 8),
    Sketcher.Constraint("Equal", 2, 11),
    Sketcher.Constraint("PointOnObject", 2, 3, -1),
    Sketcher.Constraint("PointOnObject", 11, 3, -1),
    Sketcher.Constraint("Horizontal", 3, 3, 8, 3),
    Sketcher.Constraint("Horizontal", 4, 2, 6, 2),
    Sketcher.Constraint("Horizontal", 5, 2, 8, 2),
    Sketcher.Constraint("Horizontal", 2, 2, 9, 2),
    Sketcher.Constraint("Horizontal", 1, 2, 11, 2),
    Sketcher.Constraint("Equal", 7, 5),
    Sketcher.Constraint("Radius", 2, Q("7.83 mm")),
    Sketcher.Constraint("Radius", 3, Q("1.72 mm")),
    Sketcher.Constraint("DistanceY", 1, 2, 1, 1, Q("4.4 mm")),
    Sketcher.Constraint("DistanceY", 3, 2, -1, 1, Q("4 mm")),
    Sketcher.Constraint("DistanceX", 4, 2, 4, 1, Q("1.46 mm")),
    Sketcher.Constraint("DistanceY", -1, 1, 0, 2, Q("6.5 mm")),
    Sketcher.Constraint("DistanceX", 4, 2, 1, 2, Q("3.5 mm")),
    Sketcher.Constraint("DistanceX", 9, 2, 8, 2, Q("3.5 mm")),
    Sketcher.Constraint("DistanceX", -1, 1, 0, 2, Q("28.039502 mm")),
    Sketcher.Constraint("DistanceX", 8, 3, -1, 1, Q("24.204771 mm")),
])
pocket8 = body.newObject("PartDesign::Pocket", "Pocket007")
pocket8.Profile = sketch13
pocket8.Type = "ThroughAll"
pocket8.Midplane = True

sketch14 = body.newObject("Sketcher::SketchObject", "Sketch013")
sketch14.AttachmentSupport = (doc.getObject("XZ_Plane"), [""])
sketch14.MapMode = "FlatFace"
sketch14.AttachmentOffset = App.Placement(App.Vector(0, 0, -12.05), App.Rotation())
sketch14.addGeometry([
    Part.Circle(App.Vector(-24.701992, -2.7, 0), App.Vector(0, 0, 1), 0.6),
    Part.Circle(App.Vector(26.739502, -2.7, 0), App.Vector(0, 0, 1), 0.6),
], False)
sketch14.addConstraint([
    Sketcher.Constraint("Equal", 0, 1),
    Sketcher.Constraint("Horizontal", 0, 3, 1, 3),
    Sketcher.Constraint("Diameter", 0, Q("1.2 mm")),
    Sketcher.Constraint("DistanceY", 0, 3, -1, 1, Q("2.7 mm")),
    Sketcher.Constraint("DistanceX", -1, 1, 1, 3, Q("26.739502 mm")),
    Sketcher.Constraint("DistanceX", 0, 3, -1, 1, Q("24.701992 mm")),
])
pocket9 = body.newObject("PartDesign::Pocket", "Pocket008")
pocket9.Profile = sketch14
pocket9.Length = 2

sketch15 = body.newObject("Sketcher::SketchObject", "Sketch014")
sketch15.AttachmentSupport = (doc.getObject("XZ_Plane"), [""])
sketch15.MapMode = "FlatFace"
sketch15.AttachmentOffset = App.Placement(App.Vector(0, 0, 12.05), App.Rotation())
sketch15.addGeometry([
    Part.Circle(App.Vector(26.739502, -2.7, 0), App.Vector(0, 0, 1), 0.6),
    Part.Circle(App.Vector(-24.701992, -2.7, 0), App.Vector(0, 0, 1), 0.6),
], False)
sketch15.addConstraint([
    Sketcher.Constraint("Equal", 0, 1),
    Sketcher.Constraint("Horizontal", 0, 3, 1, 3),
    Sketcher.Constraint("Diameter", 0, Q("1.2 mm")),
    Sketcher.Constraint("DistanceY", 0, 3, -1, 1, Q("2.7 mm")),
    Sketcher.Constraint("DistanceX", -1, 1, 0, 3, Q("26.739502 mm")),
    Sketcher.Constraint("DistanceX", 1, 3, -1, 1, Q("24.701992 mm")),
])
pocket10 = body.newObject("PartDesign::Pocket", "Pocket009")
pocket10.Profile = sketch15
pocket10.Length = 2
pocket10.Reversed = True

doc.recompute()
